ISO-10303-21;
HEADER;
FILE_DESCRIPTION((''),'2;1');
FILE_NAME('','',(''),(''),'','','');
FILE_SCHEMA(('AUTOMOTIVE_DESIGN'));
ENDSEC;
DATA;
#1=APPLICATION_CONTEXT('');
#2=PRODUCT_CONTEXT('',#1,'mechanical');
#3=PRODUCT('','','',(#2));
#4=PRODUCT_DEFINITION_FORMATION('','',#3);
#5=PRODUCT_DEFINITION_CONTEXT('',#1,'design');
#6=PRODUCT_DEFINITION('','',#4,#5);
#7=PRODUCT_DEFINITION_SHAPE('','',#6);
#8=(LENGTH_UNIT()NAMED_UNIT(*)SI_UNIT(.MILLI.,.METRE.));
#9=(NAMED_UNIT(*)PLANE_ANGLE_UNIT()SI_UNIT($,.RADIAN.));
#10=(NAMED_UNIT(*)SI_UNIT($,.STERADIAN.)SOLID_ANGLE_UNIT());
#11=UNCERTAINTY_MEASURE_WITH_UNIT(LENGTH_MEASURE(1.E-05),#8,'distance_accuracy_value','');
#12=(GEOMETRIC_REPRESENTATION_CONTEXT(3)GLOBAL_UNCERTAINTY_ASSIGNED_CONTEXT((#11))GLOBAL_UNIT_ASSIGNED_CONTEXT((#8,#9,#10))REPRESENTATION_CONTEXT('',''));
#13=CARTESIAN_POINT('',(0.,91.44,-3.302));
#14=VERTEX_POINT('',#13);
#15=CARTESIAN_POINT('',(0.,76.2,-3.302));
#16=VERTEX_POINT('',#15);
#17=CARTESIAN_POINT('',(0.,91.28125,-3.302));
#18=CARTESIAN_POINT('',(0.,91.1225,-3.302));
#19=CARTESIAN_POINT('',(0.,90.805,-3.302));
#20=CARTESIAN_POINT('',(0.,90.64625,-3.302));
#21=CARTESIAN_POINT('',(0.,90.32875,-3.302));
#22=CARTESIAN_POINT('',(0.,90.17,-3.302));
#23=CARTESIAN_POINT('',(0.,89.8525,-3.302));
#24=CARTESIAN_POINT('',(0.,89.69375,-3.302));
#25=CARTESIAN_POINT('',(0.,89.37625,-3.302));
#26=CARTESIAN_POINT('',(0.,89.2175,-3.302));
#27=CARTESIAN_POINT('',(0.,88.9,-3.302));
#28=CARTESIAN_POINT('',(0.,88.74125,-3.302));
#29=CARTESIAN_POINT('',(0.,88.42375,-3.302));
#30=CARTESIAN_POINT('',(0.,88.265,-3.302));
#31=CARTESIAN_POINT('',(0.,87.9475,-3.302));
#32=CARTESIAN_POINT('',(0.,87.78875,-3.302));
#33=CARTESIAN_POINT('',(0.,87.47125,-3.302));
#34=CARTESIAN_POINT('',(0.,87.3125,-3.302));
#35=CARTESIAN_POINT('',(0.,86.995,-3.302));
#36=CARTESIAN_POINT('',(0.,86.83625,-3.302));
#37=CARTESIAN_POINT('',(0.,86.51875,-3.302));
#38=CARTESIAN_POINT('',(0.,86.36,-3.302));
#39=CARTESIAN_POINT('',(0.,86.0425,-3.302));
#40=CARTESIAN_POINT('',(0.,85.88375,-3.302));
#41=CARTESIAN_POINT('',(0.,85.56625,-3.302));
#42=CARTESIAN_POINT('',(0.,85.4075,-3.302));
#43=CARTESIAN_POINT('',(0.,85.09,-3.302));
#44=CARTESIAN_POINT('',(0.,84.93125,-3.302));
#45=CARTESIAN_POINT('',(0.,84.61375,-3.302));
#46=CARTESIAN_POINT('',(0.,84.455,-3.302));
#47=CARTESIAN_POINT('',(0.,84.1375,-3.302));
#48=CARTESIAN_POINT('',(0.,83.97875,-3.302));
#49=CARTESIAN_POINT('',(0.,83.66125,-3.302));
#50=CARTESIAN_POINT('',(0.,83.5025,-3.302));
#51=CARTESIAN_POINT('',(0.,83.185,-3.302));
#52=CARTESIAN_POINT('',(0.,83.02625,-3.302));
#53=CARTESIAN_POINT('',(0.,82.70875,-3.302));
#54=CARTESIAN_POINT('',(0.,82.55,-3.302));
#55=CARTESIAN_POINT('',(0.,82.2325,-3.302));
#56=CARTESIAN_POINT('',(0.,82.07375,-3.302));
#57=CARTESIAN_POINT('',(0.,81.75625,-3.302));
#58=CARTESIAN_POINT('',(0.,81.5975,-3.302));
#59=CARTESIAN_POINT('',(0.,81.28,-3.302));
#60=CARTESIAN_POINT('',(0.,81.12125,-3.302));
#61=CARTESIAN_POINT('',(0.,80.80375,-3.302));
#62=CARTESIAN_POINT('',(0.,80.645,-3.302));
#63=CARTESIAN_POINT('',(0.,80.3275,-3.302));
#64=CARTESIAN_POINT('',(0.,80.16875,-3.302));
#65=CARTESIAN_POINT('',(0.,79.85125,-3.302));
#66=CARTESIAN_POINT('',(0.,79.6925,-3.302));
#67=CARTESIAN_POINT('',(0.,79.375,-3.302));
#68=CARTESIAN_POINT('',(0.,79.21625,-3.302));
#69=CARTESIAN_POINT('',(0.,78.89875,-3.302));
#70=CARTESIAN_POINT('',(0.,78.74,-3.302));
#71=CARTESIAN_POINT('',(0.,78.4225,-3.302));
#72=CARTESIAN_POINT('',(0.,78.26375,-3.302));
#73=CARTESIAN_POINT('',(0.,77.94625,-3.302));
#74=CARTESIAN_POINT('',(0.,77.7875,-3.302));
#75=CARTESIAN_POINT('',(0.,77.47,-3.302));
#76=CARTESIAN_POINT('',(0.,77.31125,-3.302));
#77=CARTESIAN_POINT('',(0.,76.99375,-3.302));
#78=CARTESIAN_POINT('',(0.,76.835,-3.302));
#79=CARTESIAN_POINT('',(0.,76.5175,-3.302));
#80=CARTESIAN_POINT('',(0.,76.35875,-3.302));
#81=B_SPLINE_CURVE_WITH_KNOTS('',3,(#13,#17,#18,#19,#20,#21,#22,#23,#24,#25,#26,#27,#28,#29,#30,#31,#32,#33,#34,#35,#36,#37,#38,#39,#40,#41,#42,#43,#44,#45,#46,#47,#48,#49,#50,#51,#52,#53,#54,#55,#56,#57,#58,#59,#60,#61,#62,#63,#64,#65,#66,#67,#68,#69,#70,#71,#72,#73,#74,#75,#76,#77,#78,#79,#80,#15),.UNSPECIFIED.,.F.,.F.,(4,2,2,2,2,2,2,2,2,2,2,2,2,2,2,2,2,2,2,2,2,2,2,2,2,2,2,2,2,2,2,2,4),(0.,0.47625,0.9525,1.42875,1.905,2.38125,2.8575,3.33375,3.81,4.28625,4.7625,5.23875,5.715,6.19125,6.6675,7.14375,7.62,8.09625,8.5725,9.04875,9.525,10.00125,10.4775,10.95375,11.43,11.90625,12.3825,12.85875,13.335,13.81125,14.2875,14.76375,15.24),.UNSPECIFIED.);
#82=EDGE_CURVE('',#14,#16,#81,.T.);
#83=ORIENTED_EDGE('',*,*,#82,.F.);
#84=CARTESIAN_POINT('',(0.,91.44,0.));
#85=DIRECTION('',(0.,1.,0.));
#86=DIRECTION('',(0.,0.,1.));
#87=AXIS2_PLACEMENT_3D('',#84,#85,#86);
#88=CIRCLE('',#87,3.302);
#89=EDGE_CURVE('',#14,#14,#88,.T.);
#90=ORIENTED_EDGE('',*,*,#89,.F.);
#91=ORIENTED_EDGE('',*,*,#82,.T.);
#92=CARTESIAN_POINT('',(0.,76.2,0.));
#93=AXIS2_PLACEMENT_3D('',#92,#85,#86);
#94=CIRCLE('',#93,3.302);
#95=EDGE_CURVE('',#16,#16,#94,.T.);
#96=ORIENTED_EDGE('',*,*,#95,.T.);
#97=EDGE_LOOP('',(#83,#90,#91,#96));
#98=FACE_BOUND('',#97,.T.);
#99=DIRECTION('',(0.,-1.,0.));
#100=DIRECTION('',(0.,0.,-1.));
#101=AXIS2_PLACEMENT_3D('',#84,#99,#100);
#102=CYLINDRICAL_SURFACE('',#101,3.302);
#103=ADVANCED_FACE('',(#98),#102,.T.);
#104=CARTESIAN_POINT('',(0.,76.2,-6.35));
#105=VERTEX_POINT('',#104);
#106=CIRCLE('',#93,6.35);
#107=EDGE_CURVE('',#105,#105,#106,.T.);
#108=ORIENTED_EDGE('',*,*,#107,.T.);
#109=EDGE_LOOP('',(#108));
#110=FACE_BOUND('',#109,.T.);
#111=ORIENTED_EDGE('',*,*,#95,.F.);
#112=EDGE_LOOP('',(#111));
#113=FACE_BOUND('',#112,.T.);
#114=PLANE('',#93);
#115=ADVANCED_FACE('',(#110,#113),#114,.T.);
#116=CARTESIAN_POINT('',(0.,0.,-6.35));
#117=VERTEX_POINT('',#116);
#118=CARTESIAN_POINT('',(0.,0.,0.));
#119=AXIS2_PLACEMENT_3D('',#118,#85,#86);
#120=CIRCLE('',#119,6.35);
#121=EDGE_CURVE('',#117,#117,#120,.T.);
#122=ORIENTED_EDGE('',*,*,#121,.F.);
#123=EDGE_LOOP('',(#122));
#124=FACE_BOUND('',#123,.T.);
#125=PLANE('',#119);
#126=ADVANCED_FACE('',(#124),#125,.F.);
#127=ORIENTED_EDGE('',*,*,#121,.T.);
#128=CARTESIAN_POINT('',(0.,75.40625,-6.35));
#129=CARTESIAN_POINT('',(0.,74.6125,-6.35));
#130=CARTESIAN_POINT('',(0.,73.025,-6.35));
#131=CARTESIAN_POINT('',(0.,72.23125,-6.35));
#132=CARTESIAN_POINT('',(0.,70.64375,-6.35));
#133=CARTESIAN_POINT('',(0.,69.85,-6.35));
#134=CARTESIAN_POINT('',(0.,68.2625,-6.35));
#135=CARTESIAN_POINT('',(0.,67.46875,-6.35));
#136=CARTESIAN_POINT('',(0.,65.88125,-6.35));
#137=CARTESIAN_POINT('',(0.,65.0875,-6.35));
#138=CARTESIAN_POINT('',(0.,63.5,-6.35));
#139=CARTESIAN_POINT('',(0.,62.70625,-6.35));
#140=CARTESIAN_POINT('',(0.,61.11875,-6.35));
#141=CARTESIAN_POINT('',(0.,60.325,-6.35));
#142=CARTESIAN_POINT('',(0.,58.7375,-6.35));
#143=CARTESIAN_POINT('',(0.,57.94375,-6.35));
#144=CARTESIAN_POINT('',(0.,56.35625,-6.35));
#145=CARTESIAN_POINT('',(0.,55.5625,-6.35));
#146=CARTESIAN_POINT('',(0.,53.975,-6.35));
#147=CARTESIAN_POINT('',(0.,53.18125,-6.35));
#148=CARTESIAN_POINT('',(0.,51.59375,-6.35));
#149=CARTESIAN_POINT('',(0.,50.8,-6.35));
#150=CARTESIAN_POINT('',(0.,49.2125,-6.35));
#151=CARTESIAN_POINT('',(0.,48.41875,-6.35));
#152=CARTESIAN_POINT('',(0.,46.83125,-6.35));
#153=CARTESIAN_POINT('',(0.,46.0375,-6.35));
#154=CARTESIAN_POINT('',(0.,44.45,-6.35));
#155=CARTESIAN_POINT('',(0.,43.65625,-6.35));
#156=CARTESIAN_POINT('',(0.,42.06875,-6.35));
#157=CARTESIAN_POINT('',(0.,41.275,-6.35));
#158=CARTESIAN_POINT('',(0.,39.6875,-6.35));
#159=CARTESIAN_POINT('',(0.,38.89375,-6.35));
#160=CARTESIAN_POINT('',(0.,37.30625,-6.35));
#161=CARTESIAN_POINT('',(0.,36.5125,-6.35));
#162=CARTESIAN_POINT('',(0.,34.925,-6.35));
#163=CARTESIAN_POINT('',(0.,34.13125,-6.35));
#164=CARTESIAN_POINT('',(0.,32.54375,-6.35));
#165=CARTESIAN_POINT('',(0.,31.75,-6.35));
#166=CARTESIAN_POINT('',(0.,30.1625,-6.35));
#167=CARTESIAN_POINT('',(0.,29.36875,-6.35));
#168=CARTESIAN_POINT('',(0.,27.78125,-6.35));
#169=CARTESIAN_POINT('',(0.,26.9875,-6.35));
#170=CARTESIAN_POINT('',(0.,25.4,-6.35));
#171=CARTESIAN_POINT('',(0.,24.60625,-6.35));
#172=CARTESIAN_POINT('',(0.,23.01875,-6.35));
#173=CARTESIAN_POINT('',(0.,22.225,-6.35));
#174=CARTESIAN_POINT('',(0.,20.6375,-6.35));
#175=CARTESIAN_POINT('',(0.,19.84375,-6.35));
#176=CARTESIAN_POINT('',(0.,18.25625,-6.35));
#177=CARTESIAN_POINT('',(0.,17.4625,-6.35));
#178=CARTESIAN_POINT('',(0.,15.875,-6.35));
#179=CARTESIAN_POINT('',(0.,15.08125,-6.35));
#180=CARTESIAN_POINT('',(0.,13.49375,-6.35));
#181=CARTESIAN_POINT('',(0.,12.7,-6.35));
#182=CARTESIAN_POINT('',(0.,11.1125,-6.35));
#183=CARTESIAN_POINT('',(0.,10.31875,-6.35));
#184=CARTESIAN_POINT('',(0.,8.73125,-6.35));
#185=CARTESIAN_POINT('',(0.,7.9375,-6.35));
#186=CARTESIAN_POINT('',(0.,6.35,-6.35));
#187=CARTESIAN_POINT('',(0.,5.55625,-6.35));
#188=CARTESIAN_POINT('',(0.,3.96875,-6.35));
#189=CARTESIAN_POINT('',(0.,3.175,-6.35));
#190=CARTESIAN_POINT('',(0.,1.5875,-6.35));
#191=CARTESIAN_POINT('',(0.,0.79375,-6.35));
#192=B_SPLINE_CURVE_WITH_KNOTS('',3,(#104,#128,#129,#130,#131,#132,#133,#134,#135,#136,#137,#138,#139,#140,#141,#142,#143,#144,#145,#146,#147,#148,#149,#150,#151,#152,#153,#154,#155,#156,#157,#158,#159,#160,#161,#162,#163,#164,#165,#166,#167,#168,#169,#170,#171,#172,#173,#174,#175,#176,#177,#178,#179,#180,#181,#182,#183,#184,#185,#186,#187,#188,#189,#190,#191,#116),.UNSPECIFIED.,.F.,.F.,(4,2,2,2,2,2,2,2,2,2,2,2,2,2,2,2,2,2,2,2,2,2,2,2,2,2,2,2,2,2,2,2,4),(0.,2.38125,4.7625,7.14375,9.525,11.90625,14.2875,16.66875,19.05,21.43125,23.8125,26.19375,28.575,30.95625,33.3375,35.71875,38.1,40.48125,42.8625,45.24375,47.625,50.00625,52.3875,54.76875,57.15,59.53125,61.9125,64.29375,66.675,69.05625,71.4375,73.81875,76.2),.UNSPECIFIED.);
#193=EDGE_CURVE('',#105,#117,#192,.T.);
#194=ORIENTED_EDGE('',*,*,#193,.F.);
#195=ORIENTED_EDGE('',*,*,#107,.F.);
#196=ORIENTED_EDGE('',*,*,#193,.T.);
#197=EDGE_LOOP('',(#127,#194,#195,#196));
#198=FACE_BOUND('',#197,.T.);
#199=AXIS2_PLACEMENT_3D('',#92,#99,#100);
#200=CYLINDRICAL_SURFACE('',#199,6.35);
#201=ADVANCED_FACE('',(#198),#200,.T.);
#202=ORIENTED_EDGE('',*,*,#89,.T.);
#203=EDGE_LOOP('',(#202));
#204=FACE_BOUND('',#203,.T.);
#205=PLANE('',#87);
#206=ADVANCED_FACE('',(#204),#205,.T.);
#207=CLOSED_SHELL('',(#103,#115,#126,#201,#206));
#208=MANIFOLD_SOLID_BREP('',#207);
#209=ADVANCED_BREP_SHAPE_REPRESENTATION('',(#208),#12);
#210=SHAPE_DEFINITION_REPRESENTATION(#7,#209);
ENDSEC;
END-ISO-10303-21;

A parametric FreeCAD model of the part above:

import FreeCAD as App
import Part
import Sketcher

V = App.Vector
Q = App.Units.Quantity

doc = App.newDocument("Part")
params = doc.addObject("Spreadsheet::Sheet", "Params")
for row, (alias, value) in enumerate([
    ("sketch1_diameter", "0.5 in"),
    ("pad1_length", "3 in"),
    ("sketch2_diameter", "0.26 in"),
    ("pad2_length", "0.6 in"),
], start=1):
    params.set(f"A{row}", alias)
    params.set(f"B{row}", "=" + value)
    params.setAlias(f"B{row}", alias)

body = doc.addObject("PartDesign::Body", "Body")

sketch1 = doc.addObject("Sketcher::SketchObject", "Sketch")
body.addObject(sketch1)
sketch1.AttachmentSupport = (doc.XZ_Plane, [""])
sketch1.MapMode = "FlatFace"
sketch1.addGeometry(Part.Circle(V(0, 0, 0), V(0, 0, 1), 6.35), False)
sketch1.addConstraint([
    Sketcher.Constraint("Coincident", 0, 3, -1, 1),
    Sketcher.Constraint("Diameter", 0, Q("0.5 in")),
])
sketch1.setExpression("Constraints[1]", "Params.sketch1_diameter")
pad1 = doc.addObject("PartDesign::Pad", "Pad")
body.addObject(pad1)
pad1.Profile = sketch1
pad1.setExpression("Length", "Params.pad1_length")
pad1.Reversed = True

sketch2 = doc.addObject("Sketcher::SketchObject", "Sketch001")
body.addObject(sketch2)
sketch2.AttachmentSupport = (doc.XZ_Plane, [""])
sketch2.MapMode = "FlatFace"
sketch2.AttachmentOffset = App.Placement(V(0, 0, -3 * 25.4), App.Rotation())
sketch2.addGeometry(Part.Circle(V(0, 0, 0), V(0, 0, 1), 3.302), False)
sketch2.addConstraint([
    Sketcher.Constraint("Coincident", 0, 3, -1, 1),
    Sketcher.Constraint("Diameter", 0, Q("0.26 in")),
])
sketch2.setExpression("Constraints[1]", "Params.sketch2_diameter")
pad2 = doc.addObject("PartDesign::Pad", "Pad001")
body.addObject(pad2)
pad2.Profile = sketch2
pad2.setExpression("Length", "Params.pad2_length")
pad2.Reversed = True

doc.recompute()
